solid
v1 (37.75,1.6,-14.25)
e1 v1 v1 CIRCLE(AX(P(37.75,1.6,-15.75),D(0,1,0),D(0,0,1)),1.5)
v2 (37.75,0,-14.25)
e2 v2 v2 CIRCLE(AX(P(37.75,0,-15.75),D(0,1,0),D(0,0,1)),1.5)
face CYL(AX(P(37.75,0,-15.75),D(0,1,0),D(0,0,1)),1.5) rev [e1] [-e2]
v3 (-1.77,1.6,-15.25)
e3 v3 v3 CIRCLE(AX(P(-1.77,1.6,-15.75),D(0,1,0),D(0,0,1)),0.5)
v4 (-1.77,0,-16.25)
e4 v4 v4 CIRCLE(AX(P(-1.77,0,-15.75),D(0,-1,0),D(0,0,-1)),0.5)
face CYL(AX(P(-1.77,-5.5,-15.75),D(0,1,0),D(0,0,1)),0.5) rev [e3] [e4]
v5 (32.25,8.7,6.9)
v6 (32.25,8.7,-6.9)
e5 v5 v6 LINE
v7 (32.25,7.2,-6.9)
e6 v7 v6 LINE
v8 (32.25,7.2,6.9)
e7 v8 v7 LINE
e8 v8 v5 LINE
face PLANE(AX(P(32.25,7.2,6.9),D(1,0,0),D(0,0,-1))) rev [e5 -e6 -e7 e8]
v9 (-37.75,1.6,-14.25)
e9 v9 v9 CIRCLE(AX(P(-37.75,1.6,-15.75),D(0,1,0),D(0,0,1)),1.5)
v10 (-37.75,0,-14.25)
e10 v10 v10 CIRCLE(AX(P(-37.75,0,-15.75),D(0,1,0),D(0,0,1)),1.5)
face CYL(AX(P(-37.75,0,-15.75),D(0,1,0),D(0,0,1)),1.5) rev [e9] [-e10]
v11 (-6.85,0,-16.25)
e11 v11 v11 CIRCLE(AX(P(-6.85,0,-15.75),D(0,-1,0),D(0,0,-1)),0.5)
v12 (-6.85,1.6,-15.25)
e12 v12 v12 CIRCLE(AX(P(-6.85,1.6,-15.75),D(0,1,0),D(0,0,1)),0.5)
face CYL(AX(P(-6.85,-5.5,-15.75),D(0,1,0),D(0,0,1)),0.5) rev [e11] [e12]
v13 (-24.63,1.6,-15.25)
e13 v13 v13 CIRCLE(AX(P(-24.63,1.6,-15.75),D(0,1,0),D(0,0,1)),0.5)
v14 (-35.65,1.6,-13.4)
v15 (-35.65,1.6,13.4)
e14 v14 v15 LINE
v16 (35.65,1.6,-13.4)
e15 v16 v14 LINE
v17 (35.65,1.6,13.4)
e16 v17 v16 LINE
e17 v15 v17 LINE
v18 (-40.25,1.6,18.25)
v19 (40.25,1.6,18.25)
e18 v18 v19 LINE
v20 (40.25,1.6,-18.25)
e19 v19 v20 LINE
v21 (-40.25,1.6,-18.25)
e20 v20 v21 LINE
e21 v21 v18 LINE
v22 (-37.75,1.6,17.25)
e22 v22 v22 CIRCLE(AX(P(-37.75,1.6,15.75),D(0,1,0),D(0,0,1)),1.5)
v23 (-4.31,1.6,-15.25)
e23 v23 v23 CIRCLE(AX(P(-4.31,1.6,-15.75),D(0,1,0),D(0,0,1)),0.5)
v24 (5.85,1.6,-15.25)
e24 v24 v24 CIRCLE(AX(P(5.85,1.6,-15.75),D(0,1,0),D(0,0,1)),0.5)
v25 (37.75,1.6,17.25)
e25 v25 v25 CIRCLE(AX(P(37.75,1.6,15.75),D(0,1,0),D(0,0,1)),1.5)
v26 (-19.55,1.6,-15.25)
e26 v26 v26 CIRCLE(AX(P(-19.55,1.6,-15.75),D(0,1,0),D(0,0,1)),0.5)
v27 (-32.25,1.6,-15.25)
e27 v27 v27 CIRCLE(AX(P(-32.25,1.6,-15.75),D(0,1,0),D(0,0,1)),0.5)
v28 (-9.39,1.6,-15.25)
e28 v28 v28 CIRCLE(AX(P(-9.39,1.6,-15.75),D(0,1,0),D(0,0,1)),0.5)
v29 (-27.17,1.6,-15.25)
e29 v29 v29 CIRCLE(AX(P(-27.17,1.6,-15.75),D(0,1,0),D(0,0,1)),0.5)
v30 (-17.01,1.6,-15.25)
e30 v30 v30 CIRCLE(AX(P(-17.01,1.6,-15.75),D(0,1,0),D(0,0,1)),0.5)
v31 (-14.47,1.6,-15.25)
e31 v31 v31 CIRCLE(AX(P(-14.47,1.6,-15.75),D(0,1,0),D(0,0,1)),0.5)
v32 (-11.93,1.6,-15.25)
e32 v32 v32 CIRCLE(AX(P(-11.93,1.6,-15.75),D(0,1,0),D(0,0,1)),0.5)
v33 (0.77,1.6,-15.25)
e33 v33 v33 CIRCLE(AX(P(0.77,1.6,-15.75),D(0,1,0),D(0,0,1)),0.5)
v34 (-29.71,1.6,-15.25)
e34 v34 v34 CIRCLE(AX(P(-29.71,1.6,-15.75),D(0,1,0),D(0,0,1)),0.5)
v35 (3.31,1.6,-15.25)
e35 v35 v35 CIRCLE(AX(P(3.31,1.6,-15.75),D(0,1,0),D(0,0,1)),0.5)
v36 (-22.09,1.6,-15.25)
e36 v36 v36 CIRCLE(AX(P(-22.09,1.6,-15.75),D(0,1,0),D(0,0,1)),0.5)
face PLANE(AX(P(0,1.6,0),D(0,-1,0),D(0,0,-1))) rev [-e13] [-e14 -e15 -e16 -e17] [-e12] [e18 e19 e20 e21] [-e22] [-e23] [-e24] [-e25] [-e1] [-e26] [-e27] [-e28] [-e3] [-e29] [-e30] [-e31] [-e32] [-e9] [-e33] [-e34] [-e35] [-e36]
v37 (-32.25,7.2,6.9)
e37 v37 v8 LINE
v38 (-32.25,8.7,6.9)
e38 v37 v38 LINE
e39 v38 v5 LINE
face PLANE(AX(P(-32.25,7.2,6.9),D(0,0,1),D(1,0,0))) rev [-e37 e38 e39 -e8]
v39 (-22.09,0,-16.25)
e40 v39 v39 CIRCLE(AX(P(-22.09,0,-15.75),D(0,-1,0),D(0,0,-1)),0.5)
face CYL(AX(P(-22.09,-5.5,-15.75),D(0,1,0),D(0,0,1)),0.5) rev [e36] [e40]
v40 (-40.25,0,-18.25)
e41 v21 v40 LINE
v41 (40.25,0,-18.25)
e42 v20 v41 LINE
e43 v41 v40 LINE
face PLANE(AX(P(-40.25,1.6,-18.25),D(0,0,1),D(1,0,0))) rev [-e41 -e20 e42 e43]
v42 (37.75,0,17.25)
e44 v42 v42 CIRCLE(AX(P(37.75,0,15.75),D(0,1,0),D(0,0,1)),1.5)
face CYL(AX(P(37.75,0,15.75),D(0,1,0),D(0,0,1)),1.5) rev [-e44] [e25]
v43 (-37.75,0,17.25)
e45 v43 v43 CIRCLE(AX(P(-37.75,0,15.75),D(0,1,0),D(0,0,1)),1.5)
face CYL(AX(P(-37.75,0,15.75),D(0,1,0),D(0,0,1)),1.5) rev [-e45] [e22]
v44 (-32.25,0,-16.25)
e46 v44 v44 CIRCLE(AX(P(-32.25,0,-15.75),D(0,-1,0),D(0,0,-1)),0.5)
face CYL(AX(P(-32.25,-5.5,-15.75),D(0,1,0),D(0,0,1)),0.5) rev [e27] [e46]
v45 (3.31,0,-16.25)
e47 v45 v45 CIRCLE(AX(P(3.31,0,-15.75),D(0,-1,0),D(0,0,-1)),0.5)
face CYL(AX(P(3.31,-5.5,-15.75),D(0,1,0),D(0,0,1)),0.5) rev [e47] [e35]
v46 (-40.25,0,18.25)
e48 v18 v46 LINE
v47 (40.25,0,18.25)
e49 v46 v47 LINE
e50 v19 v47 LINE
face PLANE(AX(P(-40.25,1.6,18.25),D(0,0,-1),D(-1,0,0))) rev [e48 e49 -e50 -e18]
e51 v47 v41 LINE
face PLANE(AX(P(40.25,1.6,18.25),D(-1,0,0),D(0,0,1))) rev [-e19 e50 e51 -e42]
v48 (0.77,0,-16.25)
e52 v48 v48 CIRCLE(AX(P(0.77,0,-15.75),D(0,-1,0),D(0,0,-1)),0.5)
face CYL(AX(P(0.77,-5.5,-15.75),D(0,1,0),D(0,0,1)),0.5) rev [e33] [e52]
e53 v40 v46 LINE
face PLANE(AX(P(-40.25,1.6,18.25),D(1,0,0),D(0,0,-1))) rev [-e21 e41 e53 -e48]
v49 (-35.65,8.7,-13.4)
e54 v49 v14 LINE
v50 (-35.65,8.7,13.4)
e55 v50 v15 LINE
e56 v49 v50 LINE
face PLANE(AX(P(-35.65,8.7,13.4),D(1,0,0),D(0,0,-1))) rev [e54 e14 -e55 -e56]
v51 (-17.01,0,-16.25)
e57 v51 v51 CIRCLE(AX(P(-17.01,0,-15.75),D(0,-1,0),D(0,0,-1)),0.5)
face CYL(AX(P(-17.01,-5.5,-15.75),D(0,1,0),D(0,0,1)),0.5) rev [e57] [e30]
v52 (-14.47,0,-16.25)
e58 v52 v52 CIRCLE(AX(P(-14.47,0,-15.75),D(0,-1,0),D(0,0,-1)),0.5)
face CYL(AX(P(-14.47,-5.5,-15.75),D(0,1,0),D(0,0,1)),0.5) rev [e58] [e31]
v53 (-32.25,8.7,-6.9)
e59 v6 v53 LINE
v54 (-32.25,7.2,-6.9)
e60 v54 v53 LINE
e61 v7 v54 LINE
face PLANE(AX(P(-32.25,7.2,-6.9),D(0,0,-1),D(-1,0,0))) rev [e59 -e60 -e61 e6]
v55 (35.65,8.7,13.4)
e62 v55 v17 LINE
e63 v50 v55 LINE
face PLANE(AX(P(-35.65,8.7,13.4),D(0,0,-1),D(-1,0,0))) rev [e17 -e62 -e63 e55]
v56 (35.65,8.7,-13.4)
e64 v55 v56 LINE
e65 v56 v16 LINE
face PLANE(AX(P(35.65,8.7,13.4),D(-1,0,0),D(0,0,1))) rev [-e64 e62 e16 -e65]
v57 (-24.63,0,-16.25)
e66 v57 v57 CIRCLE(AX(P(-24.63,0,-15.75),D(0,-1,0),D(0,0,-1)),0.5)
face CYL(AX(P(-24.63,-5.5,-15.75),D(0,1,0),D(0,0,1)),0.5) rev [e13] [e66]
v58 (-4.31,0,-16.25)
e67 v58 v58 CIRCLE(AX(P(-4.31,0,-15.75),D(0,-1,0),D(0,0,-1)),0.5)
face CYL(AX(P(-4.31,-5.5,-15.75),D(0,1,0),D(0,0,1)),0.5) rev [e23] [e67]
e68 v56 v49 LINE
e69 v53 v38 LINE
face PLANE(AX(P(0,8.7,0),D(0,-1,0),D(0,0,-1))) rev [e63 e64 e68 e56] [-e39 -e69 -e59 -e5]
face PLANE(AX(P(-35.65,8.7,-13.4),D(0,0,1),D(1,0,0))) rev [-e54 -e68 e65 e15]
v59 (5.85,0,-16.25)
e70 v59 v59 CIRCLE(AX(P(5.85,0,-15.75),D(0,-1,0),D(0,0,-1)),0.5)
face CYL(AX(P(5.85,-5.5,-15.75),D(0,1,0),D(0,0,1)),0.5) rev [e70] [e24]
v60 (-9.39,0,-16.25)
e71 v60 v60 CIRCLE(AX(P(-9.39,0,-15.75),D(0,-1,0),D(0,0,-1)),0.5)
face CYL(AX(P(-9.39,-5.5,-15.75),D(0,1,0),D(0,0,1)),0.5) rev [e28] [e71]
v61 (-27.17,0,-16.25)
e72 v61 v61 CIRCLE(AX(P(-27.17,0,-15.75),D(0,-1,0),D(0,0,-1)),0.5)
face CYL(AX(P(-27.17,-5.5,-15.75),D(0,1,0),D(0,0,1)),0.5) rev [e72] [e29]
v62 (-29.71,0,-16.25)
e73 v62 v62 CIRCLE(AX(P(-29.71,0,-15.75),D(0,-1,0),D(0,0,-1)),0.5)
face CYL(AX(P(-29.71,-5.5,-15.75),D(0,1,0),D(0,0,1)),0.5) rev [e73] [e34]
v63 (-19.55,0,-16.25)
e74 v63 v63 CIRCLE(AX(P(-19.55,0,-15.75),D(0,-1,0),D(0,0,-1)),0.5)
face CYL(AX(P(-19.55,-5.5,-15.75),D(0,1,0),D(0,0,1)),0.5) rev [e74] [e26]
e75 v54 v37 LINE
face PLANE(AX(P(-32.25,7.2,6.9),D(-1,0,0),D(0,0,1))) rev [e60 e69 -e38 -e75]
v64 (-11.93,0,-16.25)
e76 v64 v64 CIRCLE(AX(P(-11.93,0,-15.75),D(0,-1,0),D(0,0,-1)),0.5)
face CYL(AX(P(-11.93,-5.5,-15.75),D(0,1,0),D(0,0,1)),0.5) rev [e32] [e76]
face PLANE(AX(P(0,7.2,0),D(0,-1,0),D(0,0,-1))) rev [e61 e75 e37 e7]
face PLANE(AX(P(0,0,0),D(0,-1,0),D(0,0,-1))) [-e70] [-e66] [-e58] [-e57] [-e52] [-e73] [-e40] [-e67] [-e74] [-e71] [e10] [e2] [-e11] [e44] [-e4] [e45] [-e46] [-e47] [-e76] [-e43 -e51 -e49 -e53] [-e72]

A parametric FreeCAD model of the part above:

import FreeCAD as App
import Part
import Sketcher

V = App.Vector
Q = App.Units.Quantity

doc = App.newDocument("Part")
body = doc.addObject("PartDesign::Body", "Body")

# Sketch on XZ plane
sketch1 = body.newObject("Sketcher::SketchObject", "Sketch")
sketch1.AttachmentSupport = (doc.getObject("XZ_Plane"), [""])
sketch1.MapMode = "FlatFace"
sketch1.addGeometry([
    Part.LineSegment(V(-40, -18, 0), V(-40, 18, 0)),
    Part.LineSegment(V(-40, 18, 0), V(40, 18, 0)),
    Part.LineSegment(V(40, 18, 0), V(40, -18, 0)),
    Part.LineSegment(V(40, -18, 0), V(-40, -18, 0)),
], False)
sketch1.addConstraint([
    Sketcher.Constraint("Coincident", 0, 2, 1, 1),
    Sketcher.Constraint("Coincident", 1, 2, 2, 1),
    Sketcher.Constraint("Coincident", 2, 2, 3, 1),
    Sketcher.Constraint("Coincident", 3, 2, 0, 1),
    Sketcher.Constraint("Vertical", 0),
    Sketcher.Constraint("Horizontal", 1),
    Sketcher.Constraint("Vertical", 2),
    Sketcher.Constraint("Horizontal", 3),
    Sketcher.Constraint("Symmetric", 0, 2, 2, 2, -1, 1),
    Sketcher.Constraint("DistanceX", 1, 1, 1, 2, Q("80.5 mm")),
    Sketcher.Constraint("DistanceY", 0, 1, 0, 2, Q("36.5 mm")),
])
pad1 = body.newObject("PartDesign::Pad", "Pad")
pad1.Profile = sketch1
pad1.Length = 1.6
pad1.Reversed = True

# Sketch on XZ plane
sketch2 = body.newObject("Sketcher::SketchObject", "Sketch001")
sketch2.AttachmentSupport = (doc.getObject("XZ_Plane"), [""])
sketch2.MapMode = "FlatFace"
sketch2.AttachmentOffset = App.Placement(V(0, 0, -1.6), App.Rotation())
sketch2.addGeometry([
    Part.Circle(V(-37.8, -15.8, 0), V(0, 0, 1), 1.5),
    Part.Circle(V(-37.8, 15.8, 0), V(0, 0, 1), 1.5),
    Part.Circle(V(37.8, -15.8, 0), V(0, 0, 1), 1.5),
    Part.Circle(V(37.8, 15.8, 0), V(0, 0, 1), 1.5),
], False)
sketch2.addConstraint([
    Sketcher.Constraint("Equal", 0, 1),
    Sketcher.Constraint("Equal", 1, 2),
    Sketcher.Constraint("Equal", 2, 3),
    Sketcher.Constraint("Symmetric", 1, 3, 2, 3, -1, 1),
    Sketcher.Constraint("Symmetric", 0, 3, 3, 3, -1, 1),
    Sketcher.Constraint("Symmetric", 0, 3, 2, 3, -2),
    Sketcher.Constraint("Diameter", 0, Q("3 mm")),
    Sketcher.Constraint("DistanceY", 0, 3, 1, 3, Q("31.5 mm")),
    Sketcher.Constraint("DistanceX", 0, 3, 2, 3, Q("75.5 mm")),
])
pocket1 = body.newObject("PartDesign::Pocket", "Pocket")
pocket1.Profile = sketch2
pocket1.Length = 1.6
pocket1.Reversed = True

# Sketch on XZ plane
sketch3 = body.newObject("Sketcher::SketchObject", "Sketch002")
sketch3.AttachmentSupport = (doc.getObject("XZ_Plane"), [""])
sketch3.MapMode = "FlatFace"
sketch3.AttachmentOffset = App.Placement(V(0, 0, -1.6), App.Rotation())
sketch3.addGeometry([
    Part.LineSegment(V(-36, -13, 0), V(-36, 13, 0)),
    Part.LineSegment(V(-36, 13, 0), V(36, 13, 0)),
    Part.LineSegment(V(36, 13, 0), V(36, -13, 0)),
    Part.LineSegment(V(36, -13, 0), V(-36, -13, 0)),
], False)
sketch3.addConstraint([
    Sketcher.Constraint("Coincident", 0, 2, 1, 1),
    Sketcher.Constraint("Coincident", 1, 2, 2, 1),
    Sketcher.Constraint("Coincident", 2, 2, 3, 1),
    Sketcher.Constraint("Coincident", 3, 2, 0, 1),
    Sketcher.Constraint("Vertical", 0),
    Sketcher.Constraint("Horizontal", 1),
    Sketcher.Constraint("Vertical", 2),
    Sketcher.Constraint("Horizontal", 3),
    Sketcher.Constraint("Symmetric", 0, 2, 2, 2, -1, 1),
    Sketcher.Constraint("DistanceX", 1, 1, 1, 2, Q("71.3 mm")),
    Sketcher.Constraint("DistanceY", 0, 1, 0, 2, Q("26.8 mm")),
])
pad2 = body.newObject("PartDesign::Pad", "Pad001")
pad2.Profile = sketch3
pad2.Length = 7.1
pad2.Reversed = True

# Sketch on XZ plane
sketch4 = body.newObject("Sketcher::SketchObject", "Sketch003")
sketch4.AttachmentSupport = (doc.getObject("XZ_Plane"), [""])
sketch4.MapMode = "FlatFace"
sketch4.AttachmentOffset = App.Placement(V(0, 0, -1.6), App.Rotation())
sketch4.addGeometry([
    Part.Circle(V(-32.2, -15.8, 0), V(0, 0, 1), 0.5),  # 0
    Part.Circle(V(-29.7, -15.8, 0), V(0, 0, 1), 0.5),  # 1
    Part.Circle(V(-27.2, -15.8, 0), V(0, 0, 1), 0.5),  # 2
    Part.Circle(V(-24.6, -15.8, 0), V(0, 0, 1), 0.5),  # 3
    Part.Circle(V(-22.1, -15.8, 0), V(0, 0, 1), 0.5),  # 4
    Part.Circle(V(-19.6, -15.8, 0), V(0, 0, 1), 0.5),  # 5
    Part.Circle(V(-17, -15.8, 0), V(0, 0, 1), 0.5),  # 6
    Part.Circle(V(-14.5, -15.8, 0), V(0, 0, 1), 0.5),  # 7
    Part.Circle(V(-11.9, -15.8, 0), V(0, 0, 1), 0.5),  # 8
    Part.Circle(V(-9.4, -15.8, 0), V(0, 0, 1), 0.5),  # 9
    Part.Circle(V(-6.8, -15.8, 0), V(0, 0, 1), 0.5),  # 10
    Part.Circle(V(-4.3, -15.8, 0), V(0, 0, 1), 0.5),  # 11
    Part.Circle(V(-1.8, -15.8, 0), V(0, 0, 1), 0.5),  # 12
    Part.Circle(V(0.8, -15.8, 0), V(0, 0, 1), 0.5),  # 13
    Part.Circle(V(3.3, -15.8, 0), V(0, 0, 1), 0.5),  # 14
    Part.Circle(V(5.8, -15.8, 0), V(0, 0, 1), 0.5),  # 15
], False)
sketch4.addConstraint([
    Sketcher.Constraint("Equal", 0, 1),
    Sketcher.Constraint("Equal", 1, 2),
    Sketcher.Constraint("Equal", 2, 3),
    Sketcher.Constraint("Equal", 3, 4),
    Sketcher.Constraint("Equal", 4, 5),
    Sketcher.Constraint("Equal", 5, 6),
    Sketcher.Constraint("Equal", 6, 7),
    Sketcher.Constraint("Equal", 7, 8),
    Sketcher.Constraint("Equal", 8, 9),
    Sketcher.Constraint("Equal", 9, 10),
    Sketcher.Constraint("Equal", 10, 11),
    Sketcher.Constraint("Equal", 11, 12),
    Sketcher.Constraint("Equal", 12, 13),
    Sketcher.Constraint("Equal", 13, 14),
    Sketcher.Constraint("Equal", 14, 15),
    Sketcher.Constraint("Horizontal", 0, 3, 1, 3),
    Sketcher.Constraint("Horizontal", 1, 3, 2, 3),
    Sketcher.Constraint("Horizontal", 2, 3, 3, 3),
    Sketcher.Constraint("Horizontal", 3, 3, 4, 3),
    Sketcher.Constraint("Horizontal", 4, 3, 5, 3),
    Sketcher.Constraint("Horizontal", 5, 3, 6, 3),
    Sketcher.Constraint("Horizontal", 6, 3, 7, 3),
    Sketcher.Constraint("Horizontal", 7, 3, 8, 3),
    Sketcher.Constraint("Horizontal", 8, 3, 9, 3),
    Sketcher.Constraint("Horizontal", 9, 3, 10, 3),
    Sketcher.Constraint("Horizontal", 10, 3, 11, 3),
    Sketcher.Constraint("Horizontal", 11, 3, 12, 3),
    Sketcher.Constraint("Horizontal", 12, 3, 13, 3),
    Sketcher.Constraint("Horizontal", 13, 3, 14, 3),
    Sketcher.Constraint("Horizontal", 14, 3, 15, 3),
    Sketcher.Constraint("Diameter", 0, Q("1 mm")),
    Sketcher.Constraint("DistanceX", 0, 3, 5, 3, Q("12.7 mm")),
    Sketcher.Constraint("DistanceX", 1, 3, 6, 3, Q("12.7 mm")),
    Sketcher.Constraint("DistanceX", 2, 3, 7, 3, Q("12.7 mm")),
    Sketcher.Constraint("DistanceX", 3, 3, 8, 3, Q("12.7 mm")),
    Sketcher.Constraint("DistanceX", 4, 3, 9, 3, Q("12.7 mm")),
    Sketcher.Constraint("DistanceX", 5, 3, 10, 3, Q("12.7 mm")),
    Sketcher.Constraint("DistanceX", 6, 3, 11, 3, Q("12.7 mm")),
    Sketcher.Constraint("DistanceX", 7, 3, 12, 3, Q("12.7 mm")),
    Sketcher.Constraint("DistanceX", 8, 3, 13, 3, Q("12.7 mm")),
    Sketcher.Constraint("DistanceX", 9, 3, 14, 3, Q("12.7 mm")),
    Sketcher.Constraint("DistanceX", 10, 3, 15, 3, Q("12.7 mm")),
    Sketcher.Constraint("DistanceX", 0, 3, -1, 1, Q("32.25 mm")),
    Sketcher.Constraint("DistanceY", 0, 3, -1, 1, Q("15.75 mm")),
    Sketcher.Constraint("DistanceX", 1, 3, -1, 1, Q("29.71 mm")),
    Sketcher.Constraint("DistanceX", 2, 3, -1, 1, Q("27.17 mm")),
    Sketcher.Constraint("DistanceX", 3, 3, -1, 1, Q("24.63 mm")),
    Sketcher.Constraint("DistanceX", 4, 3, -1, 1, Q("22.09 mm")),
])
pocket2 = body.newObject("PartDesign::Pocket", "Pocket001")
pocket2.Profile = sketch4
pocket2.Length = 7.1
pocket2.Reversed = True

# Sketch on XZ plane
sketch5 = body.newObject("Sketcher::SketchObject", "Sketch004")
sketch5.AttachmentSupport = (doc.getObject("XZ_Plane"), [""])
sketch5.MapMode = "FlatFace"
sketch5.AttachmentOffset = App.Placement(V(0, 0, -8.7), App.Rotation())
sketch5.addGeometry([
    Part.LineSegment(V(-32, -7, 0), V(-32, 7, 0)),
    Part.LineSegment(V(-32, 7, 0), V(32, 7, 0)),
    Part.LineSegment(V(32, 7, 0), V(32, -7, 0)),
    Part.LineSegment(V(32, -7, 0), V(-32, -7, 0)),
], False)
sketch5.addConstraint([
    Sketcher.Constraint("Coincident", 0, 2, 1, 1),
    Sketcher.Constraint("Coincident", 1, 2, 2, 1),
    Sketcher.Constraint("Coincident", 2, 2, 3, 1),
    Sketcher.Constraint("Coincident", 3, 2, 0, 1),
    Sketcher.Constraint("Vertical", 0),
    Sketcher.Constraint("Horizontal", 1),
    Sketcher.Constraint("Vertical", 2),
    Sketcher.Constraint("Horizontal", 3),
    Sketcher.Constraint("Symmetric", 0, 2, 2, 2, -1, 1),
    Sketcher.Constraint("DistanceX", 1, 1, 1, 2, Q("64.5 mm")),
    Sketcher.Constraint("DistanceY", 0, 1, 0, 2, Q("13.8 mm")),
])
pocket3 = body.newObject("PartDesign::Pocket", "Pocket002")
pocket3.Profile = sketch5
pocket3.Length = 1.5
pocket3.Reversed = True

doc.recompute()
